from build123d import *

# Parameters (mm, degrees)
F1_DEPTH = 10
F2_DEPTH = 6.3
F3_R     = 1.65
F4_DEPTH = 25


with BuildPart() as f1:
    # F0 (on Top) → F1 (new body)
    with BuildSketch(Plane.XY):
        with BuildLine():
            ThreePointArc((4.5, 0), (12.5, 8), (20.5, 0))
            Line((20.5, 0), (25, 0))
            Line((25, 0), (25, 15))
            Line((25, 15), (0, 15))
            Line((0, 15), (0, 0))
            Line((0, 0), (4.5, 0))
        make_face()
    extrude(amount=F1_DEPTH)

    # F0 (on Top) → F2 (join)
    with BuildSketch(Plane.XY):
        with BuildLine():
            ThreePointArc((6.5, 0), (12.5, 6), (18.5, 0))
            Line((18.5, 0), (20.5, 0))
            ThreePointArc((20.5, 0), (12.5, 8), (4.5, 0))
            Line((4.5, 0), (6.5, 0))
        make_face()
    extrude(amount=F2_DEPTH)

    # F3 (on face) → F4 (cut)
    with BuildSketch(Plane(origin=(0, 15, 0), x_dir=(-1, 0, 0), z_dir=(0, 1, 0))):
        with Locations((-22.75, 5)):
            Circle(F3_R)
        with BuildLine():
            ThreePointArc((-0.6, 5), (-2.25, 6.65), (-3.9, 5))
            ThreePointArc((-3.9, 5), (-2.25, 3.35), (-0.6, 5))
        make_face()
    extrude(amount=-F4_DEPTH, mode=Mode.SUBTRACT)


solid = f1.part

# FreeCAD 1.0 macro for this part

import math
import FreeCAD as App
import Part
import Sketcher

doc = App.newDocument("Part")
body = doc.addObject("PartDesign::Body", "Body")

# Sketch on XY plane
sketch1 = doc.addObject("Sketcher::SketchObject", "Sketch")
body.addObject(sketch1)
sketch1.AttachmentSupport = (doc.XY_Plane, [""])
sketch1.MapMode = "FlatFace"
sketch1.addGeometry([
    Part.ArcOfCircle(Part.Circle(App.Vector(12.5, 0, 0), App.Vector(0, 0, 1), 8), math.radians(0), math.radians(180)),  # 0
    Part.LineSegment(App.Vector(20.5, 0, 0), App.Vector(25, 0, 0)),  # 1
    Part.LineSegment(App.Vector(25, 0, 0), App.Vector(25, 15, 0)),  # 2
    Part.LineSegment(App.Vector(25, 15, 0), App.Vector(0, 15, 0)),  # 3
    Part.LineSegment(App.Vector(0, 15, 0), App.Vector(0, 0, 0)),  # 4
    Part.LineSegment(App.Vector(0, 0, 0), App.Vector(4.5, 0, 0)),  # 5
], False)
sketch1.addConstraint([
    Sketcher.Constraint("Coincident", 0, 1, 1, 1),
    Sketcher.Constraint("Coincident", 1, 2, 2, 1),
    Sketcher.Constraint("Coincident", 2, 2, 3, 1),
    Sketcher.Constraint("Coincident", 3, 2, 4, 1),
    Sketcher.Constraint("Coincident", 4, 2, 5, 1),
    Sketcher.Constraint("Coincident", 5, 2, 0, 2),
    Sketcher.Constraint("Horizontal", 1),
    Sketcher.Constraint("Vertical", 2),
    Sketcher.Constraint("Horizontal", 3),
    Sketcher.Constraint("Vertical", 4),
    Sketcher.Constraint("Horizontal", 5),
    Sketcher.Constraint("Coincident", 4, 2, -1, 1),
    Sketcher.Constraint("PointOnObject", 0, 3, -1),
    Sketcher.Constraint("PointOnObject", 0, 1, -1),
    Sketcher.Constraint("Equal", 1, 5),
    Sketcher.Constraint("Radius", 0, 8.0),
    Sketcher.Constraint("DistanceX", 3, 2, 3, 1, 25.0),
    Sketcher.Constraint("DistanceY", 2, 1, 2, 2, 15.0),
])
pad1 = doc.addObject("PartDesign::Pad", "Pad")
body.addObject(pad1)
pad1.Profile = sketch1
pad1.Length = 10

# Sketch on XY plane
sketch2 = doc.addObject("Sketcher::SketchObject", "Sketch001")
body.addObject(sketch2)
sketch2.AttachmentSupport = (doc.XY_Plane, [""])
sketch2.MapMode = "FlatFace"
sketch2.addGeometry([
    Part.ArcOfCircle(Part.Circle(App.Vector(12.5, 0, 0), App.Vector(0, 0, 1), 6), math.radians(0), math.radians(180)),
    Part.LineSegment(App.Vector(18.5, 0, 0), App.Vector(20.5, 0, 0)),
    Part.ArcOfCircle(Part.Circle(App.Vector(12.5, 0, 0), App.Vector(0, 0, 1), 8), math.radians(0), math.radians(180)),
    Part.LineSegment(App.Vector(4.5, 0, 0), App.Vector(6.5, 0, 0)),
], False)
sketch2.addConstraint([
    Sketcher.Constraint("Coincident", 0, 1, 1, 1),
    Sketcher.Constraint("Coincident", 1, 2, 2, 1),
    Sketcher.Constraint("Coincident", 2, 2, 3, 1),
    Sketcher.Constraint("Coincident", 3, 2, 0, 2),
    Sketcher.Constraint("Horizontal", 1),
    Sketcher.Constraint("Horizontal", 3),
    Sketcher.Constraint("Coincident", 2, 3, 0, 3),
    Sketcher.Constraint("PointOnObject", 0, 3, -1),
    Sketcher.Constraint("PointOnObject", 0, 1, -1),
    Sketcher.Constraint("PointOnObject", 2, 2, -1),
    Sketcher.Constraint("Radius", 0, 6.0),
    Sketcher.Constraint("Radius", 2, 8.0),
    Sketcher.Constraint("DistanceX", -1, 1, 0, 3, 12.5),
])
pad2 = doc.addObject("PartDesign::Pad", "Pad001")
body.addObject(pad2)
pad2.Profile = sketch2
pad2.Length = 6.3

# Sketch on XZ plane
sketch3 = doc.addObject("Sketcher::SketchObject", "Sketch002")
body.addObject(sketch3)
sketch3.AttachmentSupport = (doc.XZ_Plane, [""])
sketch3.MapMode = "FlatFace"
sketch3.AttachmentOffset = App.Placement(App.Vector(0, 0, -15), App.Rotation())
sketch3.addGeometry([
    Part.Circle(App.Vector(22.75, 5, 0), App.Vector(0, 0, 1), 1.65),
    Part.Circle(App.Vector(2.25, 5, 0), App.Vector(0, 0, 1), 1.65),
], False)
sketch3.addConstraint([
    Sketcher.Constraint("Equal", 0, 1),
    Sketcher.Constraint("Horizontal", 0, 3, 1, 3),
    Sketcher.Constraint("Diameter", 0, 3.3),
    Sketcher.Constraint("DistanceY", -1, 1, 0, 3, 5.0),
    Sketcher.Constraint("DistanceX", 1, 3, 0, 3, 20.5),
    Sketcher.Constraint("DistanceX", -1, 1, 0, 3, 22.75),
])
pocket1 = doc.addObject("PartDesign::Pocket", "Pocket")
body.addObject(pocket1)
pocket1.Profile = sketch3
pocket1.Length = 25
pocket1.Reversed = True

doc.recompute()
